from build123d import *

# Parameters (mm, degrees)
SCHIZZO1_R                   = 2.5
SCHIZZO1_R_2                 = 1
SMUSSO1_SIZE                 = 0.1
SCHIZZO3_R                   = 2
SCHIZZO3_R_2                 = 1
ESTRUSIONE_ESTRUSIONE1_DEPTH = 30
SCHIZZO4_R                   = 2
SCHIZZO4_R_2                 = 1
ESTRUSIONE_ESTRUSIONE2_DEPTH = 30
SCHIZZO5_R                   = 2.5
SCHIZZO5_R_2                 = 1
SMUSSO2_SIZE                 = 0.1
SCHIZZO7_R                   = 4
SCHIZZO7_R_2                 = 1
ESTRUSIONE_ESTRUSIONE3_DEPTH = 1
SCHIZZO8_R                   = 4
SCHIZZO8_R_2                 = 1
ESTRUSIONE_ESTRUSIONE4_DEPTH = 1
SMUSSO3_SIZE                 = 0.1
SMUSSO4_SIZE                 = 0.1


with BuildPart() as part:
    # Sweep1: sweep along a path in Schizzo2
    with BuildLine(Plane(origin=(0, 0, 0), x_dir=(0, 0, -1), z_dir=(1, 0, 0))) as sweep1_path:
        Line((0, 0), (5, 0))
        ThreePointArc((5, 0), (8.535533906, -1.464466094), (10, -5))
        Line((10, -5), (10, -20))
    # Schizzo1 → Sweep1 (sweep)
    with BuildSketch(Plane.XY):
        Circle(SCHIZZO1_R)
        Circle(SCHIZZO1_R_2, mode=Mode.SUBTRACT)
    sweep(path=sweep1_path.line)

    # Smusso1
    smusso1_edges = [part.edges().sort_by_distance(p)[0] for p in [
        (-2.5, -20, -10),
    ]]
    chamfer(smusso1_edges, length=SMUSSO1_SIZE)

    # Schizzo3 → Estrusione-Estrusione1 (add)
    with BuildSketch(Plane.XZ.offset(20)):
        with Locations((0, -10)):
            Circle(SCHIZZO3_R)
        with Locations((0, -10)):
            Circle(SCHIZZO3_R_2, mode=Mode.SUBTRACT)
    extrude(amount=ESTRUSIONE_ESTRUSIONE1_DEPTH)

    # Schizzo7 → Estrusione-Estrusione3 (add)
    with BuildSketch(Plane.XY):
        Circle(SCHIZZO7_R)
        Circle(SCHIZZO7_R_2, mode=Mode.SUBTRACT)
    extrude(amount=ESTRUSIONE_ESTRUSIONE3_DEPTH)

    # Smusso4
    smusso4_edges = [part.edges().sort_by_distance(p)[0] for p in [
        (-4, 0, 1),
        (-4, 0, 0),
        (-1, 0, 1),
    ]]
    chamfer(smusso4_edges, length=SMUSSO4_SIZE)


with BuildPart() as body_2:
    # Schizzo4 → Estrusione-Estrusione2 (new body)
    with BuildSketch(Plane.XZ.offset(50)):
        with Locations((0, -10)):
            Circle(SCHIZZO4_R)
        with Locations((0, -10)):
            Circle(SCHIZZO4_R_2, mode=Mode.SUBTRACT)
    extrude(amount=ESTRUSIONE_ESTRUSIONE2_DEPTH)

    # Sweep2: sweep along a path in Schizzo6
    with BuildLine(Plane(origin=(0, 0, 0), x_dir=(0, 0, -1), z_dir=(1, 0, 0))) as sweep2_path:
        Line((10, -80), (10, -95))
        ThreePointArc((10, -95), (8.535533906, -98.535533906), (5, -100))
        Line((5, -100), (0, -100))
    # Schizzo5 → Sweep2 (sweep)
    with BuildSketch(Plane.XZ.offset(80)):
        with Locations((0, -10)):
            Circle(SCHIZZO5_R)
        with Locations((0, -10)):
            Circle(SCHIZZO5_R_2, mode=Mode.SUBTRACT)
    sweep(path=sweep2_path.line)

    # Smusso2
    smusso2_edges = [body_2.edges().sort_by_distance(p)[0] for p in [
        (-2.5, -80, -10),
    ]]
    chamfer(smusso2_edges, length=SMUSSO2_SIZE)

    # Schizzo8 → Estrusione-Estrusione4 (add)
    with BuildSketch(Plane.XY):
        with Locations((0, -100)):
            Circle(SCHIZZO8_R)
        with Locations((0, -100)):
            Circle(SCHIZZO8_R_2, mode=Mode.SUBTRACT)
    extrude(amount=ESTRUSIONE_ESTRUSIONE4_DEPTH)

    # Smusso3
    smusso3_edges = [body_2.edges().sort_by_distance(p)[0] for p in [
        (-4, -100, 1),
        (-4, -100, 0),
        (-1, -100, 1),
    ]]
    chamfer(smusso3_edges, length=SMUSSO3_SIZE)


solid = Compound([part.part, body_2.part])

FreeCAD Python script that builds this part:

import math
import FreeCAD as App
import Part
import Sketcher
from FreeCAD import Vector
Q = App.Units.Quantity


def edges_at(feature, points):
    """Names of the edges that pass closest to the given points."""
    edges = feature.Shape.Edges
    near = lambda p: min(range(len(edges)), key=lambda i: edges[i].distToShape(Part.Vertex(*p))[0])
    return sorted({f"Edge{near(p) + 1}" for p in points})

doc = App.newDocument("Part")
body = doc.addObject("PartDesign::Body", "Body")

# Sketch on XY plane
sketch1 = body.newObject("Sketcher::SketchObject", "Sketch")
sketch1.AttachmentSupport = (doc.getObject("XY_Plane"), [""])
sketch1.MapMode = "FlatFace"
sketch1.addGeometry([
    Part.Circle(Vector(0, 0, 0), Vector(0, 0, 1), 2.5),
    Part.Circle(Vector(0, 0, 0), Vector(0, 0, 1), 1),
], False)
sketch1.addConstraint([
    Sketcher.Constraint("Coincident", 0, 3, -1, 1),
    Sketcher.Constraint("Coincident", 1, 3, -1, 1),
    Sketcher.Constraint("Diameter", 0, Q("5 mm")),
    Sketcher.Constraint("Diameter", 1, Q("2 mm")),
])

# Sketch on YZ plane
sketch2 = body.newObject("Sketcher::SketchObject", "Sketch001")
sketch2.AttachmentSupport = (doc.getObject("YZ_Plane"), [""])
sketch2.MapMode = "FlatFace"
sketch2.addGeometry([
    Part.LineSegment(Vector(0, 0, 0), Vector(0, -5, 0)),
    Part.ArcOfCircle(Part.Circle(Vector(-5, -5, 0), Vector(0, 0, 1), 5), math.radians(-90), math.radians(0)),
    Part.LineSegment(Vector(-5, -10, 0), Vector(-20, -10, 0)),
], False)
sketch2.addConstraint([
    Sketcher.Constraint("Tangent", 0, 2, 1, 2),
    Sketcher.Constraint("Tangent", 1, 1, 2, 1),
    Sketcher.Constraint("Vertical", 0),
    Sketcher.Constraint("Horizontal", 2),
    Sketcher.Constraint("Coincident", 0, 1, -1, 1),
    Sketcher.Constraint("Radius", 1, Q("5 mm")),
    Sketcher.Constraint("DistanceX", 2, 2, 2, 1, Q("15 mm")),
    Sketcher.Constraint("DistanceY", 0, 2, 0, 1, Q("5 mm")),
])
doc.recompute()

additivepipe = body.newObject("PartDesign::AdditivePipe", "AdditivePipe")
additivepipe.Profile = sketch1
additivepipe.Spine = (sketch2, ["Edge1", "Edge2", "Edge3"])
doc.recompute()

chamfer = body.newObject("PartDesign::Chamfer", "Chamfer")
chamfer.Base = (additivepipe, edges_at(additivepipe, [(-2.5, -20, -10)]))
chamfer.Size = 0.1

# Sketch on XZ plane
sketch3 = body.newObject("Sketcher::SketchObject", "Sketch002")
sketch3.AttachmentSupport = (doc.getObject("XZ_Plane"), [""])
sketch3.MapMode = "FlatFace"
sketch3.AttachmentOffset = App.Placement(Vector(0, 0, 20), App.Rotation())
sketch3.addGeometry([
    Part.Circle(Vector(0, -10, 0), Vector(0, 0, 1), 2),
    Part.Circle(Vector(0, -10, 0), Vector(0, 0, 1), 1),
], False)
sketch3.addConstraint([
    Sketcher.Constraint("Coincident", 1, 3, 0, 3),
    Sketcher.Constraint("PointOnObject", 0, 3, -2),
    Sketcher.Constraint("Diameter", 0, Q("4 mm")),
    Sketcher.Constraint("Diameter", 1, Q("2 mm")),
    Sketcher.Constraint("DistanceY", 0, 3, -1, 1, Q("10 mm")),
])
pad1 = body.newObject("PartDesign::Pad", "Pad")
pad1.Profile = sketch3
pad1.Length = 30

# Sketch on XY plane
sketch4 = body.newObject("Sketcher::SketchObject", "Sketch003")
sketch4.AttachmentSupport = (doc.getObject("XY_Plane"), [""])
sketch4.MapMode = "FlatFace"
sketch4.addGeometry([
    Part.Circle(Vector(0, 0, 0), Vector(0, 0, 1), 4),
    Part.Circle(Vector(0, 0, 0), Vector(0, 0, 1), 1),
], False)
sketch4.addConstraint([
    Sketcher.Constraint("Coincident", 0, 3, -1, 1),
    Sketcher.Constraint("Coincident", 1, 3, -1, 1),
    Sketcher.Constraint("Diameter", 0, Q("8 mm")),
    Sketcher.Constraint("Diameter", 1, Q("2 mm")),
])
pad2 = body.newObject("PartDesign::Pad", "Pad001")
pad2.Profile = sketch4
pad2.Length = 1
doc.recompute()

chamfer2 = body.newObject("PartDesign::Chamfer", "Chamfer001")
chamfer2.Base = (pad2, edges_at(pad2, [(-4, 0, 1), (-4, 0, 0), (-1, 0, 1)]))
chamfer2.Size = 0.1
body2 = doc.addObject("PartDesign::Body", "Body001")

# Sketch on XZ plane
sketch5 = body2.newObject("Sketcher::SketchObject", "Sketch004")
sketch5.AttachmentSupport = (doc.getObject("XZ_Plane001"), [""])
sketch5.MapMode = "FlatFace"
sketch5.AttachmentOffset = App.Placement(Vector(0, 0, 50), App.Rotation())
sketch5.addGeometry([
    Part.Circle(Vector(0, -10, 0), Vector(0, 0, 1), 2),
    Part.Circle(Vector(0, -10, 0), Vector(0, 0, 1), 1),
], False)
sketch5.addConstraint([
    Sketcher.Constraint("Coincident", 1, 3, 0, 3),
    Sketcher.Constraint("PointOnObject", 0, 3, -2),
    Sketcher.Constraint("Diameter", 0, Q("4 mm")),
    Sketcher.Constraint("Diameter", 1, Q("2 mm")),
    Sketcher.Constraint("DistanceY", 0, 3, -1, 1, Q("10 mm")),
])
pad3 = body2.newObject("PartDesign::Pad", "Pad002")
pad3.Profile = sketch5
pad3.Length = 30

# Sketch on XZ plane
sketch6 = body2.newObject("Sketcher::SketchObject", "Sketch005")
sketch6.AttachmentSupport = (doc.getObject("XZ_Plane001"), [""])
sketch6.MapMode = "FlatFace"
sketch6.AttachmentOffset = App.Placement(Vector(0, 0, 80), App.Rotation())
sketch6.addGeometry([
    Part.Circle(Vector(0, -10, 0), Vector(0, 0, 1), 2.5),
    Part.Circle(Vector(0, -10, 0), Vector(0, 0, 1), 1),
], False)
sketch6.addConstraint([
    Sketcher.Constraint("Coincident", 1, 3, 0, 3),
    Sketcher.Constraint("PointOnObject", 0, 3, -2),
    Sketcher.Constraint("Diameter", 0, Q("5 mm")),
    Sketcher.Constraint("Diameter", 1, Q("2 mm")),
    Sketcher.Constraint("DistanceY", 0, 3, -1, 1, Q("10 mm")),
])

# Sketch on YZ plane
sketch7 = body2.newObject("Sketcher::SketchObject", "Sketch006")
sketch7.AttachmentSupport = (doc.getObject("YZ_Plane001"), [""])
sketch7.MapMode = "FlatFace"
sketch7.addGeometry([
    Part.LineSegment(Vector(-80, -10, 0), Vector(-95, -10, 0)),
    Part.ArcOfCircle(Part.Circle(Vector(-95, -5, 0), Vector(0, 0, 1), 5), math.radians(180), math.radians(270)),
    Part.LineSegment(Vector(-100, -5, 0), Vector(-100, 0, 0)),
], False)
sketch7.addConstraint([
    Sketcher.Constraint("Tangent", 0, 2, 1, 2),
    Sketcher.Constraint("Tangent", 1, 1, 2, 1),
    Sketcher.Constraint("Horizontal", 0),
    Sketcher.Constraint("Vertical", 2),
    Sketcher.Constraint("PointOnObject", 2, 2, -1),
    Sketcher.Constraint("Radius", 1, Q("5 mm")),
    Sketcher.Constraint("DistanceX", 0, 2, 0, 1, Q("15 mm")),
    Sketcher.Constraint("DistanceY", 2, 1, 2, 2, Q("5 mm")),
    Sketcher.Constraint("DistanceX", 1, 3, -1, 1, Q("95 mm")),
])
doc.recompute()

additivepipe2 = body2.newObject("PartDesign::AdditivePipe", "AdditivePipe001")
additivepipe2.Profile = sketch6
additivepipe2.Spine = (sketch7, ["Edge1", "Edge2", "Edge3"])
doc.recompute()

chamfer3 = body2.newObject("PartDesign::Chamfer", "Chamfer002")
chamfer3.Base = (additivepipe2, edges_at(additivepipe2, [(-2.5, -80, -10)]))
chamfer3.Size = 0.1

# Sketch on XY plane
sketch8 = body2.newObject("Sketcher::SketchObject", "Sketch007")
sketch8.AttachmentSupport = (doc.getObject("XY_Plane001"), [""])
sketch8.MapMode = "FlatFace"
sketch8.addGeometry([
    Part.Circle(Vector(0, -100, 0), Vector(0, 0, 1), 4),
    Part.Circle(Vector(0, -100, 0), Vector(0, 0, 1), 1),
], False)
sketch8.addConstraint([
    Sketcher.Constraint("Coincident", 1, 3, 0, 3),
    Sketcher.Constraint("PointOnObject", 0, 3, -2),
    Sketcher.Constraint("Diameter", 0, Q("8 mm")),
    Sketcher.Constraint("Diameter", 1, Q("2 mm")),
    Sketcher.Constraint("DistanceY", 0, 3, -1, 1, Q("100 mm")),
])
pad4 = body2.newObject("PartDesign::Pad", "Pad003")
pad4.Profile = sketch8
pad4.Length = 1
doc.recompute()

chamfer4 = body2.newObject("PartDesign::Chamfer", "Chamfer003")
chamfer4.Base = (pad4, edges_at(pad4, [(-4, -100, 1), (-4, -100, 0), (-1, -100, 1)]))
chamfer4.Size = 0.1

doc.recompute()
